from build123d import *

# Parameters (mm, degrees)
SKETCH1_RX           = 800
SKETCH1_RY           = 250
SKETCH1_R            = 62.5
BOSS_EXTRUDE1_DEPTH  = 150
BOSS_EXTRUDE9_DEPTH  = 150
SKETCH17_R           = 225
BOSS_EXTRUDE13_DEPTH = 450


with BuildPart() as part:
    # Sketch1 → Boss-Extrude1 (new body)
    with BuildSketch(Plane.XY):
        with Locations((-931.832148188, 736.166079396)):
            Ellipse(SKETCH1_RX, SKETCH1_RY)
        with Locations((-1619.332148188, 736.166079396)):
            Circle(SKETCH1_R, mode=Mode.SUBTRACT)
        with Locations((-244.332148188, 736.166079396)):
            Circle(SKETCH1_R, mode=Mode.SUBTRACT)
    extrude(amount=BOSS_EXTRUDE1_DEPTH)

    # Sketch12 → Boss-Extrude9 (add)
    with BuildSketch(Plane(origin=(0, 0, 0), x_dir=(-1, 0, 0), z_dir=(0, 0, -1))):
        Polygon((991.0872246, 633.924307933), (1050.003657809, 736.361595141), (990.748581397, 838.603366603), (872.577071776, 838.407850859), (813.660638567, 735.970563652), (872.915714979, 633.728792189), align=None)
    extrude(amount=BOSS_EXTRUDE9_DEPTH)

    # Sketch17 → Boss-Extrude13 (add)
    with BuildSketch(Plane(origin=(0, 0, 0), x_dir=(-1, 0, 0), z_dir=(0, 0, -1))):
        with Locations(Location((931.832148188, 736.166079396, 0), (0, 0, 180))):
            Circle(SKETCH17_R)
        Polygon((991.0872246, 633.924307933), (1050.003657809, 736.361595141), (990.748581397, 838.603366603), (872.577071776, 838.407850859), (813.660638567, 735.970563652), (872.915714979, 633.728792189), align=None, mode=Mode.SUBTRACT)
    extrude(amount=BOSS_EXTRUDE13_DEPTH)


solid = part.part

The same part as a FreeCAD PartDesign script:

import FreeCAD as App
import Part
import Sketcher
from FreeCAD import Vector

doc = App.newDocument("Part")
body = doc.addObject("PartDesign::Body", "Body")

# Sketch on XY plane
sketch1 = body.newObject("Sketcher::SketchObject", "Sketch")
sketch1.AttachmentSupport = (doc.getObject("XY_Plane"), [""])
sketch1.MapMode = "FlatFace"
sketch1.addGeometry([
    Part.Ellipse(Vector(-131.832148, 736.166079, 0), Vector(-931.832148, 986.166079, 0), Vector(-931.832148, 736.166079, 0)),
    Part.Circle(Vector(-1619.332148, 736.166079, 0), Vector(0, 0, 1), 62.5),
    Part.Circle(Vector(-244.332148, 736.166079, 0), Vector(0, 0, 1), 62.5),
], False)
sketch1.addConstraint([
    Sketcher.Constraint("Block", 0),
    Sketcher.Constraint("Equal", 1, 2),
    Sketcher.Constraint("Horizontal", 1, 3, 2, 3),
    Sketcher.Constraint("Diameter", 1, 125.0),
    Sketcher.Constraint("DistanceX", 1, 3, 2, 3, 1375.0),
    Sketcher.Constraint("DistanceX", 1, 3, -1, 1, 1619.332148),
    Sketcher.Constraint("DistanceY", -1, 1, 1, 3, 736.166079),
])
pad1 = body.newObject("PartDesign::Pad", "Pad")
pad1.Profile = sketch1
pad1.Length = 150

# Sketch on XY plane
sketch2 = body.newObject("Sketcher::SketchObject", "Sketch001")
sketch2.AttachmentSupport = (doc.getObject("XY_Plane"), [""])
sketch2.MapMode = "FlatFace"
sketch2.addGeometry([
    Part.LineSegment(Vector(-991.087225, 633.924308, 0), Vector(-1050.003658, 736.361595, 0)),  # 0
    Part.LineSegment(Vector(-1050.003658, 736.361595, 0), Vector(-990.748581, 838.603367, 0)),  # 1
    Part.LineSegment(Vector(-990.748581, 838.603367, 0), Vector(-872.577072, 838.407851, 0)),  # 2
    Part.LineSegment(Vector(-872.577072, 838.407851, 0), Vector(-813.660639, 735.970564, 0)),  # 3
    Part.LineSegment(Vector(-813.660639, 735.970564, 0), Vector(-872.915715, 633.728792, 0)),  # 4
    Part.LineSegment(Vector(-872.915715, 633.728792, 0), Vector(-991.087225, 633.924308, 0)),  # 5
], False)
sketch2.addConstraint([
    Sketcher.Constraint("Coincident", 0, 2, 1, 1),
    Sketcher.Constraint("Coincident", 1, 2, 2, 1),
    Sketcher.Constraint("Coincident", 2, 2, 3, 1),
    Sketcher.Constraint("Coincident", 3, 2, 4, 1),
    Sketcher.Constraint("Coincident", 4, 2, 5, 1),
    Sketcher.Constraint("Coincident", 5, 2, 0, 1),
    Sketcher.Constraint("Parallel", 0, 3),
    Sketcher.Constraint("Parallel", 1, 4),
    Sketcher.Constraint("Parallel", 2, 5),
    Sketcher.Constraint("Equal", 0, 1),
    Sketcher.Constraint("Equal", 1, 2),
    Sketcher.Constraint("Equal", 2, 3),
    Sketcher.Constraint("Distance", 0, 118.171671),
    Sketcher.Constraint("DistanceX", 1, 2, -1, 1, 990.748581),
    Sketcher.Constraint("DistanceY", -1, 1, 2, 2, 838.407851),
    Sketcher.Constraint("DistanceX", 3, 2, -1, 1, 813.660639),
    Sketcher.Constraint("DistanceY", 0, 2, 1, 2, 102.241771),
    Sketcher.Constraint("DistanceY", 3, 2, 0, 2, 0.391031),
])
pad2 = body.newObject("PartDesign::Pad", "Pad001")
pad2.Profile = sketch2
pad2.Length = 150
pad2.Reversed = True

# Sketch on XY plane
sketch3 = body.newObject("Sketcher::SketchObject", "Sketch002")
sketch3.AttachmentSupport = (doc.getObject("XY_Plane"), [""])
sketch3.MapMode = "FlatFace"
sketch3.addGeometry([
    Part.Circle(Vector(-931.832148, 736.166079, 0), Vector(0, 0, 1), 225),  # 0
    Part.LineSegment(Vector(-1050.003658, 736.361595, 0), Vector(-991.087225, 633.924308, 0)),  # 1
    Part.LineSegment(Vector(-991.087225, 633.924308, 0), Vector(-872.915715, 633.728792, 0)),  # 2
    Part.LineSegment(Vector(-872.915715, 633.728792, 0), Vector(-813.660639, 735.970564, 0)),  # 3
    Part.LineSegment(Vector(-813.660639, 735.970564, 0), Vector(-872.577072, 838.407851, 0)),  # 4
    Part.LineSegment(Vector(-872.577072, 838.407851, 0), Vector(-990.748581, 838.603367, 0)),  # 5
    Part.LineSegment(Vector(-990.748581, 838.603367, 0), Vector(-1050.003658, 736.361595, 0)),  # 6
], False)
sketch3.addConstraint([
    Sketcher.Constraint("Coincident", 1, 2, 2, 1),
    Sketcher.Constraint("Coincident", 2, 2, 3, 1),
    Sketcher.Constraint("Coincident", 3, 2, 4, 1),
    Sketcher.Constraint("Coincident", 4, 2, 5, 1),
    Sketcher.Constraint("Coincident", 5, 2, 6, 1),
    Sketcher.Constraint("Coincident", 6, 2, 1, 1),
    Sketcher.Constraint("Parallel", 1, 4),
    Sketcher.Constraint("Parallel", 2, 5),
    Sketcher.Constraint("Parallel", 3, 6),
    Sketcher.Constraint("Equal", 1, 2),
    Sketcher.Constraint("Equal", 2, 3),
    Sketcher.Constraint("Equal", 3, 4),
    Sketcher.Constraint("Diameter", 0, 450.0),
    Sketcher.Constraint("Distance", 1, 118.171671),
    Sketcher.Constraint("DistanceX", 0, 3, -1, 1, 931.832148),
    Sketcher.Constraint("DistanceY", -1, 1, 0, 3, 736.166079),
    Sketcher.Constraint("DistanceX", 3, 2, -1, 1, 813.660639),
    Sketcher.Constraint("DistanceX", 4, 2, -1, 1, 872.577072),
    Sketcher.Constraint("DistanceY", -1, 1, 4, 2, 838.407851),
    Sketcher.Constraint("DistanceY", 1, 2, 0, 3, 102.241771),
    Sketcher.Constraint("DistanceY", 2, 2, 3, 2, 102.241771),
])
pad3 = body.newObject("PartDesign::Pad", "Pad002")
pad3.Profile = sketch3
pad3.Length = 450
pad3.Reversed = True

doc.recompute()
